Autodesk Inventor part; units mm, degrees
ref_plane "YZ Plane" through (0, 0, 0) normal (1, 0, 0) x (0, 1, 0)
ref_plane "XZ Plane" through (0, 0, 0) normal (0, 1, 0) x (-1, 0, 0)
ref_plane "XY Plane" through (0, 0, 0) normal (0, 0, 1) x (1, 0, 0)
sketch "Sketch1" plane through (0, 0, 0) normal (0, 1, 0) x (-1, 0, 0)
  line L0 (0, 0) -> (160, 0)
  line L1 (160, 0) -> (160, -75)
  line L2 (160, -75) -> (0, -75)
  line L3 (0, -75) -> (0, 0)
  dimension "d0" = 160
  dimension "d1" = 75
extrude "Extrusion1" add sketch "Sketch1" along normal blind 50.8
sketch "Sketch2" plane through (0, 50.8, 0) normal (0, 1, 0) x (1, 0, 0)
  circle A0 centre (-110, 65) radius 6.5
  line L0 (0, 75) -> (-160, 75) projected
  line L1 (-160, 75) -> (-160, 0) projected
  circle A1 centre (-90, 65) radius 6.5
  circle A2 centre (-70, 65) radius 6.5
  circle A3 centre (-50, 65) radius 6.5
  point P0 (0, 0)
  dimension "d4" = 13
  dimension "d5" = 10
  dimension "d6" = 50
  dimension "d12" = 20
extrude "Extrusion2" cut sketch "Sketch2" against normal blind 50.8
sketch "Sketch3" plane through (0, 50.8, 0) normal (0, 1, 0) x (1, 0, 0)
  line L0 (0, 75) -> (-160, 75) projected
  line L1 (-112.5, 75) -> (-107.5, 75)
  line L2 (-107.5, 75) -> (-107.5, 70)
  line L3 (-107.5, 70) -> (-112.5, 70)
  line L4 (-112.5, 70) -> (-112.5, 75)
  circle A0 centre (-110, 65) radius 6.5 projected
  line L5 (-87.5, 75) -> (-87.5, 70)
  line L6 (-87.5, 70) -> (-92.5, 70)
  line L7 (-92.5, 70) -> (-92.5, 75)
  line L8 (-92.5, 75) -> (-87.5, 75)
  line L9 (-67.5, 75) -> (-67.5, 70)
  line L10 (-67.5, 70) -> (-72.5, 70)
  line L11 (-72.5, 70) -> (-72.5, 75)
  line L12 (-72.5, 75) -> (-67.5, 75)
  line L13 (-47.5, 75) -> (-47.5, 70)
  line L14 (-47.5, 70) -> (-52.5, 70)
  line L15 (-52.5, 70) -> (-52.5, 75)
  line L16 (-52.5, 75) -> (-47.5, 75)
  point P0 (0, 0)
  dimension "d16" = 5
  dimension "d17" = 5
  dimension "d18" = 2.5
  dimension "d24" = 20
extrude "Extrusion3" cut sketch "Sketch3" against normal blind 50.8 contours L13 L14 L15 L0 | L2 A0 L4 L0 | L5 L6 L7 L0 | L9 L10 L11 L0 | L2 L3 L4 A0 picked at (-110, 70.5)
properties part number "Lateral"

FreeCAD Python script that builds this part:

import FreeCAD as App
import Part
import Sketcher
from FreeCAD import Vector
Q = App.Units.Quantity

doc = App.newDocument("Part")
params = doc.addObject("Spreadsheet::Sheet", "Params")
for row, (alias, value) in enumerate([
    ("sketch1_width", "160 mm"),
    ("sketch1_height", "75 mm"),
    ("pad1_length", "50.8 mm"),
    ("sketch2_diameter", "13 mm"),
    ("pocket1_length", "50.8 mm"),
    ("sketch3_width", "5 mm"),
    ("pocket2_length", "50.8 mm"),
], start=1):
    params.set(f"A{row}", alias)
    params.set(f"B{row}", "=" + value)
    params.setAlias(f"B{row}", alias)

body = doc.addObject("PartDesign::Body", "Body")

sketch1 = doc.addObject("Sketcher::SketchObject", "Sketch")
body.addObject(sketch1)
sketch1.AttachmentSupport = (doc.XZ_Plane, [""])
sketch1.MapMode = "FlatFace"
sketch1.addGeometry([
    Part.LineSegment(Vector(-160, 0, 0), Vector(0, 0, 0)),
    Part.LineSegment(Vector(0, 0, 0), Vector(0, -75, 0)),
    Part.LineSegment(Vector(0, -75, 0), Vector(-160, -75, 0)),
    Part.LineSegment(Vector(-160, -75, 0), Vector(-160, 0, 0)),
], False)
sketch1.addConstraint([
    Sketcher.Constraint("Coincident", 0, 2, 1, 1),
    Sketcher.Constraint("Coincident", 1, 2, 2, 1),
    Sketcher.Constraint("Coincident", 2, 2, 3, 1),
    Sketcher.Constraint("Coincident", 3, 2, 0, 1),
    Sketcher.Constraint("Horizontal", 0),
    Sketcher.Constraint("Vertical", 1),
    Sketcher.Constraint("Horizontal", 2),
    Sketcher.Constraint("Vertical", 3),
    Sketcher.Constraint("Coincident", 0, 2, -1, 1),
    Sketcher.Constraint("DistanceX", 0, 1, 0, 2, Q("160 mm")),
    Sketcher.Constraint("DistanceY", 1, 2, 1, 1, Q("75 mm")),
])
sketch1.setExpression("Constraints[9]", "Params.sketch1_width")
sketch1.setExpression("Constraints[10]", "Params.sketch1_height")
pad1 = doc.addObject("PartDesign::Pad", "Pad")
body.addObject(pad1)
pad1.Profile = sketch1
pad1.setExpression("Length", "Params.pad1_length")
pad1.Reversed = True

sketch2 = doc.addObject("Sketcher::SketchObject", "Sketch001")
body.addObject(sketch2)
sketch2.AttachmentSupport = (doc.XZ_Plane, [""])
sketch2.MapMode = "FlatFace"
sketch2.AttachmentOffset = App.Placement(Vector(0, 0, -50.8), App.Rotation())
sketch2.addGeometry([
    Part.Circle(Vector(-110, -65, 0), Vector(0, 0, 1), 6.5),
    Part.Circle(Vector(-90, -65, 0), Vector(0, 0, 1), 6.5),
    Part.Circle(Vector(-70, -65, 0), Vector(0, 0, 1), 6.5),
    Part.Circle(Vector(-50, -65, 0), Vector(0, 0, 1), 6.5),
], False)
sketch2.addConstraint([
    Sketcher.Constraint("Equal", 0, 1),
    Sketcher.Constraint("Equal", 1, 2),
    Sketcher.Constraint("Equal", 2, 3),
    Sketcher.Constraint("Horizontal", 0, 3, 1, 3),
    Sketcher.Constraint("Horizontal", 1, 3, 2, 3),
    Sketcher.Constraint("Horizontal", 2, 3, 3, 3),
    Sketcher.Constraint("Diameter", 0, Q("13 mm")),
    Sketcher.Constraint("DistanceX", 3, 3, -1, 1, Q("50 mm")),
    Sketcher.Constraint("DistanceX", 0, 3, 1, 3, Q("20 mm")),
    Sketcher.Constraint("DistanceX", 1, 3, 2, 3, Q("20 mm")),
    Sketcher.Constraint("DistanceX", 2, 3, 3, 3, Q("20 mm")),
    Sketcher.Constraint("DistanceY", 0, 3, -1, 1, Q("65 mm")),
])
sketch2.setExpression("Constraints[6]", "Params.sketch2_diameter")
pocket1 = doc.addObject("PartDesign::Pocket", "Pocket")
body.addObject(pocket1)
pocket1.Profile = sketch2
pocket1.setExpression("Length", "Params.pocket1_length")
pocket1.Reversed = True

sketch3 = doc.addObject("Sketcher::SketchObject", "Sketch002")
body.addObject(sketch3)
sketch3.AttachmentSupport = (doc.XZ_Plane, [""])
sketch3.MapMode = "FlatFace"
sketch3.AttachmentOffset = App.Placement(Vector(0, 0, -50.8), App.Rotation())
sketch3.addGeometry([
    Part.LineSegment(Vector(-47.5, -70, 0), Vector(-47.5, -75, 0)),
    Part.LineSegment(Vector(-47.5, -75, 0), Vector(-52.5, -75, 0)),
    Part.LineSegment(Vector(-52.5, -75, 0), Vector(-52.5, -70, 0)),
    Part.LineSegment(Vector(-52.5, -70, 0), Vector(-47.5, -70, 0)),
    Part.LineSegment(Vector(-107.5, -75, 0), Vector(-112.5, -75, 0)),
    Part.LineSegment(Vector(-112.5, -75, 0), Vector(-112.5, -70, 0)),
    Part.LineSegment(Vector(-112.5, -70, 0), Vector(-107.5, -70, 0)),
    Part.LineSegment(Vector(-107.5, -70, 0), Vector(-107.5, -75, 0)),
    Part.LineSegment(Vector(-87.5, -70, 0), Vector(-87.5, -75, 0)),
    Part.LineSegment(Vector(-87.5, -75, 0), Vector(-92.5, -75, 0)),
    Part.LineSegment(Vector(-92.5, -75, 0), Vector(-92.5, -70, 0)),
    Part.LineSegment(Vector(-92.5, -70, 0), Vector(-87.5, -70, 0)),
    Part.LineSegment(Vector(-67.5, -70, 0), Vector(-67.5, -75, 0)),
    Part.LineSegment(Vector(-67.5, -75, 0), Vector(-72.5, -75, 0)),
    Part.LineSegment(Vector(-72.5, -75, 0), Vector(-72.5, -70, 0)),
    Part.LineSegment(Vector(-72.5, -70, 0), Vector(-67.5, -70, 0)),
], False)
sketch3.addConstraint([
    Sketcher.Constraint("Coincident", 0, 2, 1, 1),
    Sketcher.Constraint("Coincident", 1, 2, 2, 1),
    Sketcher.Constraint("Coincident", 2, 2, 3, 1),
    Sketcher.Constraint("Coincident", 3, 2, 0, 1),
    Sketcher.Constraint("Coincident", 4, 2, 5, 1),
    Sketcher.Constraint("Coincident", 5, 2, 6, 1),
    Sketcher.Constraint("Coincident", 6, 2, 7, 1),
    Sketcher.Constraint("Coincident", 7, 2, 4, 1),
    Sketcher.Constraint("Coincident", 8, 2, 9, 1),
    Sketcher.Constraint("Coincident", 9, 2, 10, 1),
    Sketcher.Constraint("Coincident", 10, 2, 11, 1),
    Sketcher.Constraint("Coincident", 11, 2, 8, 1),
    Sketcher.Constraint("Coincident", 12, 2, 13, 1),
    Sketcher.Constraint("Coincident", 13, 2, 14, 1),
    Sketcher.Constraint("Coincident", 14, 2, 15, 1),
    Sketcher.Constraint("Coincident", 15, 2, 12, 1),
    Sketcher.Constraint("Vertical", 0),
    Sketcher.Constraint("Horizontal", 1),
    Sketcher.Constraint("Vertical", 2),
    Sketcher.Constraint("Horizontal", 3),
    Sketcher.Constraint("Horizontal", 4),
    Sketcher.Constraint("Vertical", 5),
    Sketcher.Constraint("Horizontal", 6),
    Sketcher.Constraint("Vertical", 7),
    Sketcher.Constraint("Vertical", 8),
    Sketcher.Constraint("Horizontal", 9),
    Sketcher.Constraint("Vertical", 10),
    Sketcher.Constraint("Horizontal", 11),
    Sketcher.Constraint("Vertical", 12),
    Sketcher.Constraint("Horizontal", 13),
    Sketcher.Constraint("Vertical", 14),
    Sketcher.Constraint("Horizontal", 15),
    Sketcher.Constraint("Horizontal", 1, 2, 4, 2),
    Sketcher.Constraint("Horizontal", 3, 2, 5, 2),
    Sketcher.Constraint("Horizontal", 7, 2, 8, 2),
    Sketcher.Constraint("Horizontal", 6, 2, 10, 2),
    Sketcher.Constraint("Horizontal", 9, 2, 12, 2),
    Sketcher.Constraint("Horizontal", 11, 2, 14, 2),
    Sketcher.Constraint("Equal", 3, 4),
    Sketcher.Constraint("Equal", 6, 9),
    Sketcher.Constraint("Equal", 11, 13),
    Sketcher.Constraint("Equal", 15, 0),
    Sketcher.Constraint("DistanceX", 1, 2, 1, 1, Q("5 mm")),
    Sketcher.Constraint("DistanceX", 7, 2, 8, 2, Q("20 mm")),
    Sketcher.Constraint("DistanceX", 12, 2, 0, 2, Q("20 mm")),
    Sketcher.Constraint("DistanceX", 8, 2, 12, 2, Q("20 mm")),
    Sketcher.Constraint("DistanceY", 0, 2, -1, 1, Q("75 mm")),
    Sketcher.Constraint("DistanceX", 0, 2, -1, 1, Q("47.5 mm")),
])
sketch3.setExpression("Constraints[42]", "Params.sketch3_width")
pocket2 = doc.addObject("PartDesign::Pocket", "Pocket001")
body.addObject(pocket2)
pocket2.Profile = sketch3
pocket2.setExpression("Length", "Params.pocket2_length")
pocket2.Reversed = True

doc.recompute()
